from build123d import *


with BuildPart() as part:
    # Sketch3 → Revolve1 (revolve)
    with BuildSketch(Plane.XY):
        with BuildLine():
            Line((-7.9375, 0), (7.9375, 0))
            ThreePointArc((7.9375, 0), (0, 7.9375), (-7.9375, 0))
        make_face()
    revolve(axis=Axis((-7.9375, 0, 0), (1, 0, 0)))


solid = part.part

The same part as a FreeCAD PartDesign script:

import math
import FreeCAD as App
import Part
import Sketcher

V = App.Vector
Q = App.Units.Quantity

doc = App.newDocument("Part")
body = doc.addObject("PartDesign::Body", "Body")

# Sketch on XY plane
sketch1 = body.newObject("Sketcher::SketchObject", "Sketch")
sketch1.AttachmentSupport = (doc.getObject("XY_Plane"), [""])
sketch1.MapMode = "FlatFace"
sketch1.addGeometry([
    Part.LineSegment(V(-7.9375, 0, 0), V(7.9375, 0, 0)),
    Part.ArcOfCircle(Part.Circle(V(0, 0, 0), V(0, 0, 1), 7.9375), math.radians(0), math.radians(180)),
], False)
sketch1.addConstraint([
    Sketcher.Constraint("Coincident", 0, 1, 1, 2),
    Sketcher.Constraint("Coincident", 1, 1, 0, 2),
    Sketcher.Constraint("Horizontal", 0),
    Sketcher.Constraint("Coincident", 1, 3, -1, 1),
    Sketcher.Constraint("PointOnObject", 0, 1, -1),
    Sketcher.Constraint("Radius", 1, Q("0.3125 in")),
])
revolution = body.newObject("PartDesign::Revolution", "Revolution")
revolution.Profile = sketch1
revolution.ReferenceAxis = (sketch1, ["H_Axis"])
revolution.Angle = 360

doc.recompute()
